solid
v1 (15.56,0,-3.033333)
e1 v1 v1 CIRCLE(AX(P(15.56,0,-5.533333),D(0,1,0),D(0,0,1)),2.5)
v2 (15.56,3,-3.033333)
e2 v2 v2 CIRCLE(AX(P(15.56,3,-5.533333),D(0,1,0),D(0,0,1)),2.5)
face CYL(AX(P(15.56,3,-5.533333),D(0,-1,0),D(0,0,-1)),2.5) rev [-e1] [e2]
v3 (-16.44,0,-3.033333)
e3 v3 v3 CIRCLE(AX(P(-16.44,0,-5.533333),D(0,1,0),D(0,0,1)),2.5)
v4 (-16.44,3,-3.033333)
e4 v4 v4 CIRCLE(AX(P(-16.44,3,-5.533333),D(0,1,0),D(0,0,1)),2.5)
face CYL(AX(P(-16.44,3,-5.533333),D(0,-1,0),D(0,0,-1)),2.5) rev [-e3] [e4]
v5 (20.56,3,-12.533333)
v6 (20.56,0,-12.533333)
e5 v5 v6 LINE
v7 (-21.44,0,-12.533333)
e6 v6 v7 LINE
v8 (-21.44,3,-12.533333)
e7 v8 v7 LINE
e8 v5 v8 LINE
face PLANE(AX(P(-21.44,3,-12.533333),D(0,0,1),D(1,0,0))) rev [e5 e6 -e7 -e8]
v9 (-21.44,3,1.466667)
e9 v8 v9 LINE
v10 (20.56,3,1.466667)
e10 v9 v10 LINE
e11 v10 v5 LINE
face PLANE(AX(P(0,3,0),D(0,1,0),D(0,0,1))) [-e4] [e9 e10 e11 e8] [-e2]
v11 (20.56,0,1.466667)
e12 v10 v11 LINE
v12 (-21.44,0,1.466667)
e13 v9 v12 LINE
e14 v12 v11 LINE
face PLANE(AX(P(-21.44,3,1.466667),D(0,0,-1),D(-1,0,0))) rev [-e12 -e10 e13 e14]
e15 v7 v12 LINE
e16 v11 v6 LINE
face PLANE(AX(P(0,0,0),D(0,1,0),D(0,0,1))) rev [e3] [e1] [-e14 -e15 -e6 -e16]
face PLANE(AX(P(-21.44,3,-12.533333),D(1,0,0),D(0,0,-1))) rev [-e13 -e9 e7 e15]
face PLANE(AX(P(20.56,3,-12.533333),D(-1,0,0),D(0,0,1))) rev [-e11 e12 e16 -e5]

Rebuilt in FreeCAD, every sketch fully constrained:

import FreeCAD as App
import Part
import Sketcher
Q = App.Units.Quantity


def add_polygon(sketch, points):
    """Adds a closed chain of lines whose ends are joined by coincident constraints."""
    first, n = sketch.GeometryCount, len(points)
    for a, b in zip(points, points[1:] + points[:1]):
        sketch.addGeometry(Part.LineSegment(App.Vector(*a, 0), App.Vector(*b, 0)), False)
    for i in range(n):
        sketch.addConstraint(Sketcher.Constraint("Coincident", first + i, 2, first + (i + 1) % n, 1))

doc = App.newDocument("Part")
params = doc.addObject("Spreadsheet::Sheet", "Params")
for row, (alias, value) in enumerate([
    ("sketch1_diameter", "5 mm"),
    ("sketch1_width", "42 mm"),
    ("sketch1_height", "14 mm"),
    ("pad1_length", "3 mm"),
], start=1):
    params.set(f"A{row}", alias)
    params.set(f"B{row}", "=" + value)
    params.setAlias(f"B{row}", alias)

body = doc.addObject("PartDesign::Body", "Body")

# Sketch on XZ plane
sketch1 = body.newObject("Sketcher::SketchObject", "Sketch")
sketch1.AttachmentSupport = (doc.getObject("XZ_Plane"), [""])
sketch1.MapMode = "FlatFace"
add_polygon(sketch1, [(-21.4, -12.5), (-21.4, 1.5), (20.6, 1.5), (20.6, -12.5)])  # lines 0-3
sketch1.addGeometry(Part.Circle(App.Vector(-16.4, -5.5, 0), App.Vector(0, 0, 1), 2.5), False)  # 4
sketch1.addGeometry(Part.Circle(App.Vector(15.6, -5.5, 0), App.Vector(0, 0, 1), 2.5), False)  # 5
sketch1.addConstraint([
    Sketcher.Constraint("Vertical", 0),
    Sketcher.Constraint("Horizontal", 1),
    Sketcher.Constraint("Vertical", 2),
    Sketcher.Constraint("Horizontal", 3),
    Sketcher.Constraint("Equal", 4, 5),
    Sketcher.Constraint("Horizontal", 4, 3, 5, 3),
    Sketcher.Constraint("Diameter", 4, Q("5 mm")),
    Sketcher.Constraint("DistanceX", 1, 1, 1, 2, Q("42 mm")),
    Sketcher.Constraint("DistanceY", 0, 1, 0, 2, Q("14 mm")),
    Sketcher.Constraint("DistanceX", 4, 3, 5, 3, Q("32 mm")),
    Sketcher.Constraint("DistanceX", 0, 2, 4, 3, Q("5 mm")),
    Sketcher.Constraint("DistanceY", 4, 3, 0, 2, Q("7 mm")),
    Sketcher.Constraint("DistanceX", 4, 3, -1, 1, Q("16.44 mm")),
    Sketcher.Constraint("DistanceY", 4, 3, -1, 1, Q("5.533333 mm")),
])
sketch1.setExpression("Constraints[10]", "Params.sketch1_diameter")
sketch1.setExpression("Constraints[11]", "Params.sketch1_width")
sketch1.setExpression("Constraints[12]", "Params.sketch1_height")
pad1 = body.newObject("PartDesign::Pad", "Pad")
pad1.Profile = sketch1
pad1.setExpression("Length", "Params.pad1_length")
pad1.Reversed = True

doc.recompute()
